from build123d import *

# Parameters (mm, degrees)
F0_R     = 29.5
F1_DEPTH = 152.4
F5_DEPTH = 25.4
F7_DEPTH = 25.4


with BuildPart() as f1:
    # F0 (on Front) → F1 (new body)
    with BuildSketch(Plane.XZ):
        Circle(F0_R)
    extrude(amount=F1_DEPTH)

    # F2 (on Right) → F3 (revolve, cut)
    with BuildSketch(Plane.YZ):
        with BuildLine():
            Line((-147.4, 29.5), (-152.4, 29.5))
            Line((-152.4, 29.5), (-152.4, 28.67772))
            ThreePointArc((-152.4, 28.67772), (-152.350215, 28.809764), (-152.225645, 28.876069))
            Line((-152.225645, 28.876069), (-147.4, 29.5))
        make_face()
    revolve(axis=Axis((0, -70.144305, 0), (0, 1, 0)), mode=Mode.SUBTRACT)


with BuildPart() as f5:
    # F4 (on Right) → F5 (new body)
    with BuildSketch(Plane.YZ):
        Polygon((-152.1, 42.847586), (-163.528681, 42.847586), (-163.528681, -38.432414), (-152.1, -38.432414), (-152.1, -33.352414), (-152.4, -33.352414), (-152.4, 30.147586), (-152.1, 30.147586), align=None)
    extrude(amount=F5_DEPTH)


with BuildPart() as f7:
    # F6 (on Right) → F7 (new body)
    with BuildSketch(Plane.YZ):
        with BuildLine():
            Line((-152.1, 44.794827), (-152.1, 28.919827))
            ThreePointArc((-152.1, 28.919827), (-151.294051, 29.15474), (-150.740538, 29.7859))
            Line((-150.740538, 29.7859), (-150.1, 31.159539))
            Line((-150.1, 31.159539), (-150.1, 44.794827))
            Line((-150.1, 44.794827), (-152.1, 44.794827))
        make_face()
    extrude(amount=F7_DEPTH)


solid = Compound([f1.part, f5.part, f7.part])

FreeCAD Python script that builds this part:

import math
import FreeCAD as App
import Part
import Sketcher
Q = App.Units.Quantity

doc = App.newDocument("Part")
body = doc.addObject("PartDesign::Body", "Body")

sketch1 = body.newObject("Sketcher::SketchObject", "Sketch")
sketch1.AttachmentSupport = (doc.getObject("XZ_Plane"), [""])
sketch1.MapMode = "FlatFace"
sketch1.addGeometry(Part.Circle(App.Vector(0, 0, 0), App.Vector(0, 0, 1), 30), False)
sketch1.addConstraint(Sketcher.Constraint("Coincident", 0, 3, -1, 1))
sketch1.addConstraint(Sketcher.Constraint("Diameter", 0, Q("59 mm")))
pad1 = body.newObject("PartDesign::Pad", "Pad")
pad1.Profile = sketch1
pad1.Length = Q("6 in")

sketch2 = body.newObject("Sketcher::SketchObject", "Sketch001")
sketch2.AttachmentSupport = (doc.getObject("YZ_Plane"), [""])
sketch2.MapMode = "FlatFace"
sketch2.addGeometry(Part.LineSegment(App.Vector(-147.4, 29.5, 0), App.Vector(-152.4, 29.5, 0)), False)
sketch2.addGeometry(Part.LineSegment(App.Vector(-152.4, 29.5, 0), App.Vector(-152.4, 28.68, 0)), False)
sketch2.addGeometry(Part.ArcOfCircle(Part.Circle(App.Vector(-152.2, 28.68, 0), App.Vector(0, 0, 1), 0.2), math.radians(97), math.radians(180)), False)
sketch2.addGeometry(Part.LineSegment(App.Vector(-152.23, 28.88, 0), App.Vector(-147.4, 29.5, 0)), False)
sketch2.addConstraint(Sketcher.Constraint("Coincident", 0, 2, 1, 1))
sketch2.addConstraint(Sketcher.Constraint("Coincident", 1, 2, 2, 2))
sketch2.addConstraint(Sketcher.Constraint("Coincident", 2, 1, 3, 1))
sketch2.addConstraint(Sketcher.Constraint("Coincident", 3, 2, 0, 1))
sketch2.addConstraint(Sketcher.Constraint("Horizontal", 0))
sketch2.addConstraint(Sketcher.Constraint("Vertical", 1))
sketch2.addConstraint(Sketcher.Constraint("Horizontal", 2, 3, 1, 2))
sketch2.addConstraint(Sketcher.Constraint("DistanceX", 0, 2, -1, 1, Q("6 in")))
sketch2.addConstraint(Sketcher.Constraint("Radius", 2, Q("0.199999 mm")))
sketch2.addConstraint(Sketcher.Constraint("DistanceX", 0, 2, 0, 1, Q("5 mm")))
sketch2.addConstraint(Sketcher.Constraint("DistanceY", 1, 2, 1, 1, Q("0.82228 mm")))
sketch2.addConstraint(Sketcher.Constraint("DistanceY", -1, 1, 0, 2, Q("29.5 mm")))
sketch2.addConstraint(Sketcher.Constraint("DistanceY", -1, 1, 2, 1, Q("28.876069 mm")))
groove = body.newObject("PartDesign::Groove", "Groove")
groove.Profile = sketch2
groove.ReferenceAxis = (sketch2, ["H_Axis"])
groove.Angle = 360
body2 = doc.addObject("PartDesign::Body", "Body001")

sketch3 = body2.newObject("Sketcher::SketchObject", "Sketch002")
sketch3.AttachmentSupport = (doc.getObject("YZ_Plane001"), [""])
sketch3.MapMode = "FlatFace"
sketch3.addGeometry(Part.LineSegment(App.Vector(-152.1, 42.85, 0), App.Vector(-163.53, 42.85, 0)), False)
sketch3.addGeometry(Part.LineSegment(App.Vector(-163.53, 42.85, 0), App.Vector(-163.53, -38.43, 0)), False)
sketch3.addGeometry(Part.LineSegment(App.Vector(-163.53, -38.43, 0), App.Vector(-152.1, -38.43, 0)), False)
sketch3.addGeometry(Part.LineSegment(App.Vector(-152.1, -38.43, 0), App.Vector(-152.1, -33.35, 0)), False)
sketch3.addGeometry(Part.LineSegment(App.Vector(-152.1, -33.35, 0), App.Vector(-152.4, -33.35, 0)), False)
sketch3.addGeometry(Part.LineSegment(App.Vector(-152.4, -33.35, 0), App.Vector(-152.4, 30.15, 0)), False)
sketch3.addGeometry(Part.LineSegment(App.Vector(-152.4, 30.15, 0), App.Vector(-152.1, 30.15, 0)), False)
sketch3.addGeometry(Part.LineSegment(App.Vector(-152.1, 30.15, 0), App.Vector(-152.1, 42.85, 0)), False)
sketch3.addConstraint(Sketcher.Constraint("Coincident", 0, 2, 1, 1))
sketch3.addConstraint(Sketcher.Constraint("Coincident", 1, 2, 2, 1))
sketch3.addConstraint(Sketcher.Constraint("Coincident", 2, 2, 3, 1))
sketch3.addConstraint(Sketcher.Constraint("Coincident", 3, 2, 4, 1))
sketch3.addConstraint(Sketcher.Constraint("Coincident", 4, 2, 5, 1))
sketch3.addConstraint(Sketcher.Constraint("Coincident", 5, 2, 6, 1))
sketch3.addConstraint(Sketcher.Constraint("Coincident", 6, 2, 7, 1))
sketch3.addConstraint(Sketcher.Constraint("Coincident", 7, 2, 0, 1))
sketch3.addConstraint(Sketcher.Constraint("Horizontal", 0))
sketch3.addConstraint(Sketcher.Constraint("Vertical", 1))
sketch3.addConstraint(Sketcher.Constraint("Horizontal", 2))
sketch3.addConstraint(Sketcher.Constraint("Vertical", 3))
sketch3.addConstraint(Sketcher.Constraint("Horizontal", 4))
sketch3.addConstraint(Sketcher.Constraint("Vertical", 5))
sketch3.addConstraint(Sketcher.Constraint("Horizontal", 6))
sketch3.addConstraint(Sketcher.Constraint("Vertical", 7))
sketch3.addConstraint(Sketcher.Constraint("Vertical", 3, 2, 6, 2))
sketch3.addConstraint(Sketcher.Constraint("DistanceY", 1, 2, 1, 1, Q("3.2 in")))
sketch3.addConstraint(Sketcher.Constraint("DistanceY", 3, 1, 3, 2, Q("0.2 in")))
sketch3.addConstraint(Sketcher.Constraint("DistanceY", 5, 1, 5, 2, Q("2.5 in")))
sketch3.addConstraint(Sketcher.Constraint("DistanceX", 4, 2, -1, 1, Q("6 in")))
sketch3.addConstraint(Sketcher.Constraint("DistanceX", 4, 2, 4, 1, Q("0.3 mm")))
sketch3.addConstraint(Sketcher.Constraint("DistanceX", 0, 2, 0, 1, Q("11.428681 mm")))
sketch3.addConstraint(Sketcher.Constraint("DistanceY", -1, 1, 0, 2, Q("42.847586 mm")))
pad2 = body2.newObject("PartDesign::Pad", "Pad001")
pad2.Profile = sketch3
pad2.Length = Q("1 in")
body3 = doc.addObject("PartDesign::Body", "Body002")

sketch4 = body3.newObject("Sketcher::SketchObject", "Sketch003")
sketch4.AttachmentSupport = (doc.getObject("YZ_Plane002"), [""])
sketch4.MapMode = "FlatFace"
sketch4.addGeometry(Part.LineSegment(App.Vector(-152.1, 44.8, 0), App.Vector(-152.1, 28.9, 0)), False)
sketch4.addGeometry(Part.ArcOfCircle(Part.Circle(App.Vector(-152.1, 30.4, 0), App.Vector(0, 0, 1), 1.5), math.radians(-90), math.radians(-25)), False)
sketch4.addGeometry(Part.LineSegment(App.Vector(-150.7, 29.8, 0), App.Vector(-150.1, 31.2, 0)), False)
sketch4.addGeometry(Part.LineSegment(App.Vector(-150.1, 31.2, 0), App.Vector(-150.1, 44.8, 0)), False)
sketch4.addGeometry(Part.LineSegment(App.Vector(-150.1, 44.8, 0), App.Vector(-152.1, 44.8, 0)), False)
sketch4.addConstraint(Sketcher.Constraint("Coincident", 0, 2, 1, 1))
sketch4.addConstraint(Sketcher.Constraint("Tangent", 1, 2, 2, 1))
sketch4.addConstraint(Sketcher.Constraint("Coincident", 2, 2, 3, 1))
sketch4.addConstraint(Sketcher.Constraint("Coincident", 3, 2, 4, 1))
sketch4.addConstraint(Sketcher.Constraint("Coincident", 4, 2, 0, 1))
sketch4.addConstraint(Sketcher.Constraint("Vertical", 0))
sketch4.addConstraint(Sketcher.Constraint("Vertical", 3))
sketch4.addConstraint(Sketcher.Constraint("Horizontal", 4))
sketch4.addConstraint(Sketcher.Constraint("Vertical", 1, 3, 0, 2))
sketch4.addConstraint(Sketcher.Constraint("Angle", 2, Q("65.000013 deg")))
sketch4.addConstraint(Sketcher.Constraint("DistanceY", 0, 2, 0, 1, Q("0.625 in")))
sketch4.addConstraint(Sketcher.Constraint("DistanceX", 4, 2, 4, 1, Q("2 mm")))
sketch4.addConstraint(Sketcher.Constraint("Radius", 1, Q("1.500002 mm")))
sketch4.addConstraint(Sketcher.Constraint("DistanceX", 1, 3, -1, 1, Q("152.100001 mm")))
sketch4.addConstraint(Sketcher.Constraint("DistanceY", -1, 1, 1, 2, Q("29.7859 mm")))
pad3 = body3.newObject("PartDesign::Pad", "Pad002")
pad3.Profile = sketch4
pad3.Length = Q("1 in")

doc.recompute()
